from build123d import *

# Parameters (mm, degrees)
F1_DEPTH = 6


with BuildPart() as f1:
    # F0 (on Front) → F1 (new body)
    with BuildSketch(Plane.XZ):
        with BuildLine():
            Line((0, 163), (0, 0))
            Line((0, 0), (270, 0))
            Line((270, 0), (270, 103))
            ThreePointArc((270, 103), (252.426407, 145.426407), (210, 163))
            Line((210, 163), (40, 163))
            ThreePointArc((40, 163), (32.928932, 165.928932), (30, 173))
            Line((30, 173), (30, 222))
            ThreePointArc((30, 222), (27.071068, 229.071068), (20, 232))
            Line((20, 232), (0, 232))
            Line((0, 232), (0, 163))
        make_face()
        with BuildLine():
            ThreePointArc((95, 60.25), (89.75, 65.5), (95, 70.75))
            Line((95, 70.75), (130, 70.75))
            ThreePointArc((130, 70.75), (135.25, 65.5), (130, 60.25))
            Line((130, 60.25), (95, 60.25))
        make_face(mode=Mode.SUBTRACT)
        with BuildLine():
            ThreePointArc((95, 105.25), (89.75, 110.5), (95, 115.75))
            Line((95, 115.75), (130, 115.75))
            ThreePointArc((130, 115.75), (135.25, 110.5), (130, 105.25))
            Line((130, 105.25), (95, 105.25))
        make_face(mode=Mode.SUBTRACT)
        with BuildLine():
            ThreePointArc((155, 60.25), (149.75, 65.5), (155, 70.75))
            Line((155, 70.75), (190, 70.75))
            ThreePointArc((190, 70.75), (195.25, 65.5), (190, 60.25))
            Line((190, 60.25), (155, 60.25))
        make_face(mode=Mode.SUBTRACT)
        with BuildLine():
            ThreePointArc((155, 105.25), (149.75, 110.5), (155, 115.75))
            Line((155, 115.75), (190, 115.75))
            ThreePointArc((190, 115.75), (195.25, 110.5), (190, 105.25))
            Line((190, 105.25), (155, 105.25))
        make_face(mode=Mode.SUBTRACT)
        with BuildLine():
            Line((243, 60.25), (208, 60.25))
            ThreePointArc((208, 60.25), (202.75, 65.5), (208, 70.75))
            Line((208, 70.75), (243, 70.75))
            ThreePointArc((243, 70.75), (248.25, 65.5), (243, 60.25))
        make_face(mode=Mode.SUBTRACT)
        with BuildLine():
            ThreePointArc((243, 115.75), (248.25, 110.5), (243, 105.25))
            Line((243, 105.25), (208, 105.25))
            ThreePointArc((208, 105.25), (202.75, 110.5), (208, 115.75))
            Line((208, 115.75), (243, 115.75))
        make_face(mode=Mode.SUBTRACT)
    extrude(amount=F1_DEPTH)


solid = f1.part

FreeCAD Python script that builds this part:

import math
import FreeCAD as App
import Part
import Sketcher
from FreeCAD import Vector
Q = App.Units.Quantity

doc = App.newDocument("Part")
body = doc.addObject("PartDesign::Body", "Body")

sketch1 = body.newObject("Sketcher::SketchObject", "Sketch")
sketch1.AttachmentSupport = (doc.getObject("XZ_Plane"), [""])
sketch1.MapMode = "FlatFace"
sketch1.addGeometry(Part.LineSegment(Vector(0, 0, 0), Vector(270, 0, 0)), False)
sketch1.addGeometry(Part.LineSegment(Vector(270, 0, 0), Vector(270, 103, 0)), False)
sketch1.addGeometry(Part.ArcOfCircle(Part.Circle(Vector(210, 103, 0), Vector(0, 0, 1), 60), math.radians(0), math.radians(90)), False)
sketch1.addGeometry(Part.LineSegment(Vector(210, 163, 0), Vector(40, 163, 0)), False)
sketch1.addGeometry(Part.ArcOfCircle(Part.Circle(Vector(40, 173, 0), Vector(0, 0, 1), 10), math.radians(180), math.radians(270)), False)
sketch1.addGeometry(Part.LineSegment(Vector(30, 173, 0), Vector(30, 222, 0)), False)
sketch1.addGeometry(Part.ArcOfCircle(Part.Circle(Vector(20, 222, 0), Vector(0, 0, 1), 10), math.radians(0), math.radians(90)), False)
sketch1.addGeometry(Part.LineSegment(Vector(20, 232, 0), Vector(0, 232, 0)), False)
sketch1.addGeometry(Part.LineSegment(Vector(0, 232, 0), Vector(0, 0, 0)), False)
sketch1.addGeometry(Part.LineSegment(Vector(130, 60, 0), Vector(95, 60, 0)), False)
sketch1.addGeometry(Part.ArcOfCircle(Part.Circle(Vector(95, 66, 0), Vector(0, 0, 1), 5), math.radians(90), math.radians(270)), False)
sketch1.addGeometry(Part.LineSegment(Vector(95, 71, 0), Vector(130, 71, 0)), False)
sketch1.addGeometry(Part.ArcOfCircle(Part.Circle(Vector(130, 66, 0), Vector(0, 0, 1), 5), math.radians(-90), math.radians(90)), False)
sketch1.addGeometry(Part.LineSegment(Vector(190, 60, 0), Vector(155, 60, 0)), False)
sketch1.addGeometry(Part.ArcOfCircle(Part.Circle(Vector(155, 66, 0), Vector(0, 0, 1), 5), math.radians(90), math.radians(270)), False)
sketch1.addGeometry(Part.LineSegment(Vector(155, 71, 0), Vector(190, 71, 0)), False)
sketch1.addGeometry(Part.ArcOfCircle(Part.Circle(Vector(190, 66, 0), Vector(0, 0, 1), 5), math.radians(-90), math.radians(90)), False)
sketch1.addGeometry(Part.ArcOfCircle(Part.Circle(Vector(243, 66, 0), Vector(0, 0, 1), 5), math.radians(-90), math.radians(90)), False)
sketch1.addGeometry(Part.LineSegment(Vector(243, 60, 0), Vector(208, 60, 0)), False)
sketch1.addGeometry(Part.ArcOfCircle(Part.Circle(Vector(208, 66, 0), Vector(0, 0, 1), 5), math.radians(90), math.radians(270)), False)
sketch1.addGeometry(Part.LineSegment(Vector(208, 71, 0), Vector(243, 71, 0)), False)
sketch1.addGeometry(Part.LineSegment(Vector(130, 105, 0), Vector(95, 105, 0)), False)
sketch1.addGeometry(Part.ArcOfCircle(Part.Circle(Vector(95, 110, 0), Vector(0, 0, 1), 5), math.radians(90), math.radians(270)), False)
sketch1.addGeometry(Part.LineSegment(Vector(95, 116, 0), Vector(130, 116, 0)), False)
sketch1.addGeometry(Part.ArcOfCircle(Part.Circle(Vector(130, 110, 0), Vector(0, 0, 1), 5), math.radians(-90), math.radians(90)), False)
sketch1.addGeometry(Part.LineSegment(Vector(190, 105, 0), Vector(155, 105, 0)), False)
sketch1.addGeometry(Part.ArcOfCircle(Part.Circle(Vector(155, 110, 0), Vector(0, 0, 1), 5), math.radians(90), math.radians(270)), False)
sketch1.addGeometry(Part.LineSegment(Vector(155, 116, 0), Vector(190, 116, 0)), False)
sketch1.addGeometry(Part.ArcOfCircle(Part.Circle(Vector(190, 110, 0), Vector(0, 0, 1), 5), math.radians(-90), math.radians(90)), False)
sketch1.addGeometry(Part.LineSegment(Vector(208, 116, 0), Vector(243, 116, 0)), False)
sketch1.addGeometry(Part.ArcOfCircle(Part.Circle(Vector(243, 110, 0), Vector(0, 0, 1), 5), math.radians(-90), math.radians(90)), False)
sketch1.addGeometry(Part.LineSegment(Vector(243, 105, 0), Vector(208, 105, 0)), False)
sketch1.addGeometry(Part.ArcOfCircle(Part.Circle(Vector(208, 110, 0), Vector(0, 0, 1), 5), math.radians(90), math.radians(270)), False)
sketch1.addConstraint(Sketcher.Constraint("Coincident", 0, 2, 1, 1))
sketch1.addConstraint(Sketcher.Constraint("Tangent", 1, 2, 2, 1))
sketch1.addConstraint(Sketcher.Constraint("Tangent", 2, 2, 3, 1))
sketch1.addConstraint(Sketcher.Constraint("Tangent", 3, 2, 4, 2))
sketch1.addConstraint(Sketcher.Constraint("Tangent", 4, 1, 5, 1))
sketch1.addConstraint(Sketcher.Constraint("Tangent", 5, 2, 6, 1))
sketch1.addConstraint(Sketcher.Constraint("Tangent", 6, 2, 7, 1))
sketch1.addConstraint(Sketcher.Constraint("Coincident", 7, 2, 8, 1))
sketch1.addConstraint(Sketcher.Constraint("Coincident", 8, 2, 0, 1))
sketch1.addConstraint(Sketcher.Constraint("Tangent", 9, 2, 10, 2))
sketch1.addConstraint(Sketcher.Constraint("Tangent", 10, 1, 11, 1))
sketch1.addConstraint(Sketcher.Constraint("Tangent", 11, 2, 12, 2))
sketch1.addConstraint(Sketcher.Constraint("Tangent", 12, 1, 9, 1))
sketch1.addConstraint(Sketcher.Constraint("Tangent", 13, 2, 14, 2))
sketch1.addConstraint(Sketcher.Constraint("Tangent", 14, 1, 15, 1))
sketch1.addConstraint(Sketcher.Constraint("Tangent", 15, 2, 16, 2))
sketch1.addConstraint(Sketcher.Constraint("Tangent", 16, 1, 13, 1))
sketch1.addConstraint(Sketcher.Constraint("Tangent", 17, 1, 18, 1))
sketch1.addConstraint(Sketcher.Constraint("Tangent", 18, 2, 19, 2))
sketch1.addConstraint(Sketcher.Constraint("Tangent", 19, 1, 20, 1))
sketch1.addConstraint(Sketcher.Constraint("Tangent", 20, 2, 17, 2))
sketch1.addConstraint(Sketcher.Constraint("Tangent", 21, 2, 22, 2))
sketch1.addConstraint(Sketcher.Constraint("Tangent", 22, 1, 23, 1))
sketch1.addConstraint(Sketcher.Constraint("Tangent", 23, 2, 24, 2))
sketch1.addConstraint(Sketcher.Constraint("Tangent", 24, 1, 21, 1))
sketch1.addConstraint(Sketcher.Constraint("Tangent", 25, 2, 26, 2))
sketch1.addConstraint(Sketcher.Constraint("Tangent", 26, 1, 27, 1))
sketch1.addConstraint(Sketcher.Constraint("Tangent", 27, 2, 28, 2))
sketch1.addConstraint(Sketcher.Constraint("Tangent", 28, 1, 25, 1))
sketch1.addConstraint(Sketcher.Constraint("Tangent", 29, 2, 30, 2))
sketch1.addConstraint(Sketcher.Constraint("Tangent", 30, 1, 31, 1))
sketch1.addConstraint(Sketcher.Constraint("Tangent", 31, 2, 32, 2))
sketch1.addConstraint(Sketcher.Constraint("Tangent", 32, 1, 29, 1))
sketch1.addConstraint(Sketcher.Constraint("Horizontal", 0))
sketch1.addConstraint(Sketcher.Constraint("Vertical", 1))
sketch1.addConstraint(Sketcher.Constraint("Horizontal", 3))
sketch1.addConstraint(Sketcher.Constraint("Vertical", 5))
sketch1.addConstraint(Sketcher.Constraint("Horizontal", 7))
sketch1.addConstraint(Sketcher.Constraint("Vertical", 8))
sketch1.addConstraint(Sketcher.Constraint("Horizontal", 9))
sketch1.addConstraint(Sketcher.Constraint("Horizontal", 11))
sketch1.addConstraint(Sketcher.Constraint("Horizontal", 13))
sketch1.addConstraint(Sketcher.Constraint("Horizontal", 15))
sketch1.addConstraint(Sketcher.Constraint("Horizontal", 18))
sketch1.addConstraint(Sketcher.Constraint("Horizontal", 20))
sketch1.addConstraint(Sketcher.Constraint("Horizontal", 21))
sketch1.addConstraint(Sketcher.Constraint("Horizontal", 23))
sketch1.addConstraint(Sketcher.Constraint("Horizontal", 25))
sketch1.addConstraint(Sketcher.Constraint("Horizontal", 27))
sketch1.addConstraint(Sketcher.Constraint("Horizontal", 29))
sketch1.addConstraint(Sketcher.Constraint("Horizontal", 31))
sketch1.addConstraint(Sketcher.Constraint("Coincident", 8, 2, -1, 1))
sketch1.addConstraint(Sketcher.Constraint("Equal", 4, 6))
sketch1.addConstraint(Sketcher.Constraint("Equal", 12, 14))
sketch1.addConstraint(Sketcher.Constraint("Equal", 16, 17))
sketch1.addConstraint(Sketcher.Constraint("Equal", 19, 22))
sketch1.addConstraint(Sketcher.Constraint("Equal", 24, 26))
sketch1.addConstraint(Sketcher.Constraint("Equal", 28, 30))
sketch1.addConstraint(Sketcher.Constraint("Horizontal", 12, 3, 14, 3))
sketch1.addConstraint(Sketcher.Constraint("Horizontal", 16, 3, 17, 3))
sketch1.addConstraint(Sketcher.Constraint("Horizontal", 24, 3, 26, 3))
sketch1.addConstraint(Sketcher.Constraint("Horizontal", 28, 3, 30, 3))
sketch1.addConstraint(Sketcher.Constraint("Vertical", 10, 3, 22, 3))
sketch1.addConstraint(Sketcher.Constraint("Vertical", 12, 3, 24, 3))
sketch1.addConstraint(Sketcher.Constraint("Vertical", 14, 3, 26, 3))
sketch1.addConstraint(Sketcher.Constraint("Vertical", 16, 3, 28, 3))
sketch1.addConstraint(Sketcher.Constraint("Vertical", 17, 3, 30, 3))
sketch1.addConstraint(Sketcher.Constraint("Vertical", 19, 3, 32, 3))
sketch1.addConstraint(Sketcher.Constraint("Equal", 11, 13))
sketch1.addConstraint(Sketcher.Constraint("Equal", 15, 18))
sketch1.addConstraint(Sketcher.Constraint("Radius", 2, Q("60 mm")))
sketch1.addConstraint(Sketcher.Constraint("Radius", 4, Q("9.999999 mm")))
sketch1.addConstraint(Sketcher.Constraint("DistanceX", 0, 1, 0, 2, Q("270 mm")))
sketch1.addConstraint(Sketcher.Constraint("DistanceX", 3, 2, 3, 1, Q("170 mm")))
sketch1.addConstraint(Sketcher.Constraint("DistanceX", 9, 2, 9, 1, Q("35 mm")))
sketch1.addConstraint(Sketcher.Constraint("DistanceY", 1, 1, 1, 2, Q("103 mm")))
sketch1.addConstraint(Sketcher.Constraint("DistanceY", 5, 1, 5, 2, Q("49 mm")))
sketch1.addConstraint(Sketcher.Constraint("Radius", 10, Q("5.25 mm")))
sketch1.addConstraint(Sketcher.Constraint("DistanceX", -1, 1, 10, 3, Q("95 mm")))
sketch1.addConstraint(Sketcher.Constraint("DistanceX", -1, 1, 14, 3, Q("155 mm")))
sketch1.addConstraint(Sketcher.Constraint("DistanceX", -1, 1, 17, 3, Q("243 mm")))
sketch1.addConstraint(Sketcher.Constraint("DistanceY", 10, 3, 22, 3, Q("45 mm")))
sketch1.addConstraint(Sketcher.Constraint("DistanceY", -1, 1, 10, 3, Q("65.5 mm")))
pad1 = body.newObject("PartDesign::Pad", "Pad")
pad1.Profile = sketch1
pad1.Length = 6

doc.recompute()
